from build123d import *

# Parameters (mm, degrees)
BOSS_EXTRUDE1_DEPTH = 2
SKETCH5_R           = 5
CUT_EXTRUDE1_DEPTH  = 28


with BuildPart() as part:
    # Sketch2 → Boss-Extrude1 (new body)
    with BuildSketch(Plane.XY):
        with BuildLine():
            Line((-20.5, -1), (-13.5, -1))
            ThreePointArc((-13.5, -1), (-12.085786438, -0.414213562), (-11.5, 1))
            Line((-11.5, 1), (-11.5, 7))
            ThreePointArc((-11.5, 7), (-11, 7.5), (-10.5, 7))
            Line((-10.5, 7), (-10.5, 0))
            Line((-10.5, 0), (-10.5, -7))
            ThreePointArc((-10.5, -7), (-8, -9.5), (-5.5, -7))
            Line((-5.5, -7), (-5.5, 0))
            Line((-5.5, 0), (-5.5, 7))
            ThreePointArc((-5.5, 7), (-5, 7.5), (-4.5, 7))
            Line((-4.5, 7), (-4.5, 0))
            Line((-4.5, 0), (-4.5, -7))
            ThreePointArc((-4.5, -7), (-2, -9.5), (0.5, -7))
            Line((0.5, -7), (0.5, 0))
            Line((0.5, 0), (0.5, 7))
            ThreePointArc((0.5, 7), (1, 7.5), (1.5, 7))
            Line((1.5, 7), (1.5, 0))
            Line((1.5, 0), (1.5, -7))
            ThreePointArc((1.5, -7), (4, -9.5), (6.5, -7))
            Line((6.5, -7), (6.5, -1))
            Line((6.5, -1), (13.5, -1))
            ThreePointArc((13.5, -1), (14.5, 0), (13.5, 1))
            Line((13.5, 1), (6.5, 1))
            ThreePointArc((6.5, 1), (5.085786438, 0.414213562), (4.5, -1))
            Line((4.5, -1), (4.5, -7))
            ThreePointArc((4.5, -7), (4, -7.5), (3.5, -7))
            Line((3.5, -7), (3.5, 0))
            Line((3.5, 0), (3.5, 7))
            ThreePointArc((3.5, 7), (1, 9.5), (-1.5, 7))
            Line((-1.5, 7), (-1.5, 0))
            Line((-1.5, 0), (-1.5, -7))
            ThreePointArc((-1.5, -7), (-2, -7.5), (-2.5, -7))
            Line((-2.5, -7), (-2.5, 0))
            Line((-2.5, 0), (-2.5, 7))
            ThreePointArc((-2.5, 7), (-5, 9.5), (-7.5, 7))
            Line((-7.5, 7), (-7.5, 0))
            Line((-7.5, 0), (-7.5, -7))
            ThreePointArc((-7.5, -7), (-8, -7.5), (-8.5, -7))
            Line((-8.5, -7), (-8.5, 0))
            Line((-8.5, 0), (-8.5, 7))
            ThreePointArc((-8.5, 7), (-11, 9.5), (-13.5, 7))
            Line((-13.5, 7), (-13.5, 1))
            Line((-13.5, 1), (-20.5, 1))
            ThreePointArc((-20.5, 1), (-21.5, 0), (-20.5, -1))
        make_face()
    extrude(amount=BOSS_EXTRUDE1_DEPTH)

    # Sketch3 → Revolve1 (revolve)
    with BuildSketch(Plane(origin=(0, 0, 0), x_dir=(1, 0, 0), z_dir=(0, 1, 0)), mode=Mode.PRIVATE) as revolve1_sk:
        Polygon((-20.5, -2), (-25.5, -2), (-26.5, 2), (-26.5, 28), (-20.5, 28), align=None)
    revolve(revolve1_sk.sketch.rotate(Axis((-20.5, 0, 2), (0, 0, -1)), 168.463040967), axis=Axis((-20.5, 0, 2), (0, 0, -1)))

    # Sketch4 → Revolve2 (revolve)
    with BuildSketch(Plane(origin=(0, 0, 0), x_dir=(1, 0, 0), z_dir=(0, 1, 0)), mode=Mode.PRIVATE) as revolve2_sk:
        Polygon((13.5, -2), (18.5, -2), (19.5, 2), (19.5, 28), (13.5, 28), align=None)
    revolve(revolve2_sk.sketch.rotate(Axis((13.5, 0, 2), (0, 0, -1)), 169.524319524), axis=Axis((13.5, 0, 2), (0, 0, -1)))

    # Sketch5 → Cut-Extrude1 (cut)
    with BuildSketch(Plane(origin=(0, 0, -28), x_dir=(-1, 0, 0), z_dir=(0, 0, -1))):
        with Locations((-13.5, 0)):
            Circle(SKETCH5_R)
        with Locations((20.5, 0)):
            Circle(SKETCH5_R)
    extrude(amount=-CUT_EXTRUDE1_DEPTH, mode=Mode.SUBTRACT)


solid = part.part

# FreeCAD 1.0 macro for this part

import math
import FreeCAD as App
import Part
import Sketcher

V = App.Vector

doc = App.newDocument("Part")
body = doc.addObject("PartDesign::Body", "Body")

# Sketch on XY plane
sketch1 = body.newObject("Sketcher::SketchObject", "Sketch")
sketch1.AttachmentSupport = (doc.getObject("XY_Plane"), [""])
sketch1.MapMode = "FlatFace"
sketch1.addGeometry(Part.LineSegment(V(-20.5, -1, 0), V(-13.5, -1, 0)), False)
sketch1.addGeometry(Part.ArcOfCircle(Part.Circle(V(-13.5, 1, 0), V(0, 0, 1), 2), math.radians(-90), math.radians(0)), False)
sketch1.addGeometry(Part.LineSegment(V(-11.5, 1, 0), V(-11.5, 7, 0)), False)
sketch1.addGeometry(Part.ArcOfCircle(Part.Circle(V(-11, 7, 0), V(0, 0, 1), 0.5), math.radians(0), math.radians(180)), False)
sketch1.addGeometry(Part.LineSegment(V(-10.5, 7, 0), V(-10.5, -7, 0)), False)
sketch1.addGeometry(Part.ArcOfCircle(Part.Circle(V(-8, -7, 0), V(0, 0, 1), 2.5), math.radians(180), math.radians(360)), False)
sketch1.addGeometry(Part.LineSegment(V(-5.5, -7, 0), V(-5.5, 7, 0)), False)
sketch1.addGeometry(Part.ArcOfCircle(Part.Circle(V(-5, 7, 0), V(0, 0, 1), 0.5), math.radians(0), math.radians(180)), False)
sketch1.addGeometry(Part.LineSegment(V(-4.5, 7, 0), V(-4.5, -7, 0)), False)
sketch1.addGeometry(Part.ArcOfCircle(Part.Circle(V(-2, -7, 0), V(0, 0, 1), 2.5), math.radians(180), math.radians(360)), False)
sketch1.addGeometry(Part.LineSegment(V(0.5, -7, 0), V(0.5, 7, 0)), False)
sketch1.addGeometry(Part.ArcOfCircle(Part.Circle(V(1, 7, 0), V(0, 0, 1), 0.5), math.radians(0), math.radians(180)), False)
sketch1.addGeometry(Part.LineSegment(V(1.5, 7, 0), V(1.5, -7, 0)), False)
sketch1.addGeometry(Part.ArcOfCircle(Part.Circle(V(4, -7, 0), V(0, 0, 1), 2.5), math.radians(180), math.radians(360)), False)
sketch1.addGeometry(Part.LineSegment(V(6.5, -7, 0), V(6.5, -1, 0)), False)
sketch1.addGeometry(Part.LineSegment(V(6.5, -1, 0), V(13.5, -1, 0)), False)
sketch1.addGeometry(Part.ArcOfCircle(Part.Circle(V(13.5, 0, 0), V(0, 0, 1), 1), math.radians(-90), math.radians(90)), False)
sketch1.addGeometry(Part.LineSegment(V(13.5, 1, 0), V(6.5, 1, 0)), False)
sketch1.addGeometry(Part.ArcOfCircle(Part.Circle(V(6.5, -1, 0), V(0, 0, 1), 2), math.radians(90), math.radians(180)), False)
sketch1.addGeometry(Part.LineSegment(V(4.5, -1, 0), V(4.5, -7, 0)), False)
sketch1.addGeometry(Part.ArcOfCircle(Part.Circle(V(4, -7, 0), V(0, 0, 1), 0.5), math.radians(180), math.radians(360)), False)
sketch1.addGeometry(Part.LineSegment(V(3.5, -7, 0), V(3.5, 7, 0)), False)
sketch1.addGeometry(Part.ArcOfCircle(Part.Circle(V(1, 7, 0), V(0, 0, 1), 2.5), math.radians(0), math.radians(180)), False)
sketch1.addGeometry(Part.LineSegment(V(-1.5, 7, 0), V(-1.5, -7, 0)), False)
sketch1.addGeometry(Part.ArcOfCircle(Part.Circle(V(-2, -7, 0), V(0, 0, 1), 0.5), math.radians(180), math.radians(360)), False)
sketch1.addGeometry(Part.LineSegment(V(-2.5, -7, 0), V(-2.5, 7, 0)), False)
sketch1.addGeometry(Part.ArcOfCircle(Part.Circle(V(-5, 7, 0), V(0, 0, 1), 2.5), math.radians(0), math.radians(180)), False)
sketch1.addGeometry(Part.LineSegment(V(-7.5, 7, 0), V(-7.5, -7, 0)), False)
sketch1.addGeometry(Part.ArcOfCircle(Part.Circle(V(-8, -7, 0), V(0, 0, 1), 0.5), math.radians(180), math.radians(360)), False)
sketch1.addGeometry(Part.LineSegment(V(-8.5, -7, 0), V(-8.5, 7, 0)), False)
sketch1.addGeometry(Part.ArcOfCircle(Part.Circle(V(-11, 7, 0), V(0, 0, 1), 2.5), math.radians(0), math.radians(180)), False)
sketch1.addGeometry(Part.LineSegment(V(-13.5, 7, 0), V(-13.5, 1, 0)), False)
sketch1.addGeometry(Part.LineSegment(V(-13.5, 1, 0), V(-20.5, 1, 0)), False)
sketch1.addGeometry(Part.ArcOfCircle(Part.Circle(V(-20.5, 0, 0), V(0, 0, 1), 1), math.radians(90), math.radians(270)), False)
sketch1.addConstraint(Sketcher.Constraint("Tangent", 0, 2, 1, 1))
sketch1.addConstraint(Sketcher.Constraint("Tangent", 1, 2, 2, 1))
sketch1.addConstraint(Sketcher.Constraint("Tangent", 2, 2, 3, 2))
sketch1.addConstraint(Sketcher.Constraint("Tangent", 3, 1, 4, 1))
sketch1.addConstraint(Sketcher.Constraint("Tangent", 4, 2, 5, 1))
sketch1.addConstraint(Sketcher.Constraint("Tangent", 5, 2, 6, 1))
sketch1.addConstraint(Sketcher.Constraint("Tangent", 6, 2, 7, 2))
sketch1.addConstraint(Sketcher.Constraint("Tangent", 7, 1, 8, 1))
sketch1.addConstraint(Sketcher.Constraint("Tangent", 8, 2, 9, 1))
sketch1.addConstraint(Sketcher.Constraint("Tangent", 9, 2, 10, 1))
sketch1.addConstraint(Sketcher.Constraint("Tangent", 10, 2, 11, 2))
sketch1.addConstraint(Sketcher.Constraint("Tangent", 11, 1, 12, 1))
sketch1.addConstraint(Sketcher.Constraint("Tangent", 12, 2, 13, 1))
sketch1.addConstraint(Sketcher.Constraint("Tangent", 13, 2, 14, 1))
sketch1.addConstraint(Sketcher.Constraint("Coincident", 14, 2, 15, 1))
sketch1.addConstraint(Sketcher.Constraint("Tangent", 15, 2, 16, 1))
sketch1.addConstraint(Sketcher.Constraint("Tangent", 16, 2, 17, 1))
sketch1.addConstraint(Sketcher.Constraint("Tangent", 17, 2, 18, 1))
sketch1.addConstraint(Sketcher.Constraint("Tangent", 18, 2, 19, 1))
sketch1.addConstraint(Sketcher.Constraint("Tangent", 19, 2, 20, 2))
sketch1.addConstraint(Sketcher.Constraint("Tangent", 20, 1, 21, 1))
sketch1.addConstraint(Sketcher.Constraint("Tangent", 21, 2, 22, 1))
sketch1.addConstraint(Sketcher.Constraint("Tangent", 22, 2, 23, 1))
sketch1.addConstraint(Sketcher.Constraint("Tangent", 23, 2, 24, 2))
sketch1.addConstraint(Sketcher.Constraint("Tangent", 24, 1, 25, 1))
sketch1.addConstraint(Sketcher.Constraint("Tangent", 25, 2, 26, 1))
sketch1.addConstraint(Sketcher.Constraint("Tangent", 26, 2, 27, 1))
sketch1.addConstraint(Sketcher.Constraint("Tangent", 27, 2, 28, 2))
sketch1.addConstraint(Sketcher.Constraint("Tangent", 28, 1, 29, 1))
sketch1.addConstraint(Sketcher.Constraint("Tangent", 29, 2, 30, 1))
sketch1.addConstraint(Sketcher.Constraint("Tangent", 30, 2, 31, 1))
sketch1.addConstraint(Sketcher.Constraint("Coincident", 31, 2, 32, 1))
sketch1.addConstraint(Sketcher.Constraint("Tangent", 32, 2, 33, 1))
sketch1.addConstraint(Sketcher.Constraint("Tangent", 33, 2, 0, 1))
sketch1.addConstraint(Sketcher.Constraint("Horizontal", 0))
sketch1.addConstraint(Sketcher.Constraint("Vertical", 2))
sketch1.addConstraint(Sketcher.Constraint("Vertical", 4))
sketch1.addConstraint(Sketcher.Constraint("Vertical", 6))
sketch1.addConstraint(Sketcher.Constraint("Vertical", 8))
sketch1.addConstraint(Sketcher.Constraint("Vertical", 10))
sketch1.addConstraint(Sketcher.Constraint("Vertical", 12))
sketch1.addConstraint(Sketcher.Constraint("Vertical", 14))
sketch1.addConstraint(Sketcher.Constraint("Horizontal", 15))
sketch1.addConstraint(Sketcher.Constraint("Horizontal", 17))
sketch1.addConstraint(Sketcher.Constraint("Vertical", 19))
sketch1.addConstraint(Sketcher.Constraint("Vertical", 21))
sketch1.addConstraint(Sketcher.Constraint("Vertical", 23))
sketch1.addConstraint(Sketcher.Constraint("Vertical", 25))
sketch1.addConstraint(Sketcher.Constraint("Vertical", 27))
sketch1.addConstraint(Sketcher.Constraint("Vertical", 29))
sketch1.addConstraint(Sketcher.Constraint("Vertical", 31))
sketch1.addConstraint(Sketcher.Constraint("Horizontal", 32))
sketch1.addConstraint(Sketcher.Constraint("Coincident", 20, 3, 13, 3))
sketch1.addConstraint(Sketcher.Constraint("Coincident", 22, 3, 11, 3))
sketch1.addConstraint(Sketcher.Constraint("Coincident", 24, 3, 9, 3))
sketch1.addConstraint(Sketcher.Constraint("Coincident", 26, 3, 7, 3))
sketch1.addConstraint(Sketcher.Constraint("Coincident", 28, 3, 5, 3))
sketch1.addConstraint(Sketcher.Constraint("Coincident", 30, 3, 3, 3))
sketch1.addConstraint(Sketcher.Constraint("Coincident", 14, 2, 18, 3))
sketch1.addConstraint(Sketcher.Constraint("Coincident", 31, 2, 1, 3))
sketch1.addConstraint(Sketcher.Constraint("Equal", 3, 7))
sketch1.addConstraint(Sketcher.Constraint("Equal", 5, 9))
sketch1.addConstraint(Sketcher.Constraint("Equal", 7, 11))
sketch1.addConstraint(Sketcher.Constraint("Equal", 9, 13))
sketch1.addConstraint(Sketcher.Constraint("Equal", 11, 20))
sketch1.addConstraint(Sketcher.Constraint("Symmetric", 0, 2, 16, 2, -1, 1))
sketch1.addConstraint(Sketcher.Constraint("Symmetric", 7, 1, 19, 2, -1, 1))
sketch1.addConstraint(Sketcher.Constraint("PointOnObject", 16, 3, -1))
sketch1.addConstraint(Sketcher.Constraint("Horizontal", 3, 3, 7, 3))
sketch1.addConstraint(Sketcher.Constraint("Horizontal", 5, 3, 9, 3))
sketch1.addConstraint(Sketcher.Constraint("Horizontal", 7, 3, 11, 3))
sketch1.addConstraint(Sketcher.Constraint("Horizontal", 9, 3, 13, 3))
sketch1.addConstraint(Sketcher.Constraint("Equal", 0, 15))
sketch1.addConstraint(Sketcher.Constraint("Radius", 1, 2.0))
sketch1.addConstraint(Sketcher.Constraint("Radius", 3, 0.5))
sketch1.addConstraint(Sketcher.Constraint("DistanceY", 2, 1, 2, 2, 6.0))
pad1 = body.newObject("PartDesign::Pad", "Pad")
pad1.Profile = sketch1
pad1.Length = 2

# Sketch on XZ plane
sketch2 = body.newObject("Sketcher::SketchObject", "Sketch001")
sketch2.AttachmentSupport = (doc.getObject("XZ_Plane"), [""])
sketch2.MapMode = "FlatFace"
sketch2.addGeometry(Part.LineSegment(V(-25.5, 2, 0), V(-20.5, 2, 0)), False)
sketch2.addGeometry(Part.LineSegment(V(-20.5, 2, 0), V(-20.5, -28, 0)), False)
sketch2.addGeometry(Part.LineSegment(V(-20.5, -28, 0), V(-26.5, -28, 0)), False)
sketch2.addGeometry(Part.LineSegment(V(-26.5, -28, 0), V(-26.5, -2, 0)), False)
sketch2.addGeometry(Part.LineSegment(V(-26.5, -2, 0), V(-25.5, 2, 0)), False)
sketch2.addGeometry(Part.LineSegment(V(-20.5, 2, 0), V(-20.5, -28, 0)), True)  # axis
sketch2.addConstraint(Sketcher.Constraint("Coincident", 0, 2, 1, 1))
sketch2.addConstraint(Sketcher.Constraint("Coincident", 1, 2, 2, 1))
sketch2.addConstraint(Sketcher.Constraint("Coincident", 2, 2, 3, 1))
sketch2.addConstraint(Sketcher.Constraint("Coincident", 3, 2, 4, 1))
sketch2.addConstraint(Sketcher.Constraint("Coincident", 4, 2, 0, 1))
sketch2.addConstraint(Sketcher.Constraint("Horizontal", 0))
sketch2.addConstraint(Sketcher.Constraint("Vertical", 1))
sketch2.addConstraint(Sketcher.Constraint("Horizontal", 2))
sketch2.addConstraint(Sketcher.Constraint("Vertical", 3))
sketch2.addConstraint(Sketcher.Constraint("Vertical", 5))
sketch2.addConstraint(Sketcher.Constraint("Coincident", 5, 1, 0, 2))
sketch2.addConstraint(Sketcher.Constraint("Horizontal", 2, 2, 5, 2))
sketch2.addConstraint(Sketcher.Constraint("DistanceX", 0, 1, 0, 2, 5.0))
sketch2.addConstraint(Sketcher.Constraint("DistanceX", 2, 2, 2, 1, 6.0))
sketch2.addConstraint(Sketcher.Constraint("DistanceY", 1, 2, 1, 1, 30.0))
sketch2.addConstraint(Sketcher.Constraint("DistanceY", 3, 1, 3, 2, 26.0))
sketch2.addConstraint(Sketcher.Constraint("DistanceY", -1, 1, 0, 2, 2.0))
sketch2.addConstraint(Sketcher.Constraint("DistanceX", 0, 2, -1, 1, 20.5))
revolution = body.newObject("PartDesign::Revolution", "Revolution")
revolution.Profile = sketch2
revolution.ReferenceAxis = (sketch2, ["Axis0"])
revolution.Angle = 360

# Sketch on XZ plane
sketch3 = body.newObject("Sketcher::SketchObject", "Sketch002")
sketch3.AttachmentSupport = (doc.getObject("XZ_Plane"), [""])
sketch3.MapMode = "FlatFace"
sketch3.addGeometry(Part.LineSegment(V(13.5, 2, 0), V(18.5, 2, 0)), False)
sketch3.addGeometry(Part.LineSegment(V(18.5, 2, 0), V(19.5, -2, 0)), False)
sketch3.addGeometry(Part.LineSegment(V(19.5, -2, 0), V(19.5, -28, 0)), False)
sketch3.addGeometry(Part.LineSegment(V(19.5, -28, 0), V(13.5, -28, 0)), False)
sketch3.addGeometry(Part.LineSegment(V(13.5, -28, 0), V(13.5, 2, 0)), False)
sketch3.addGeometry(Part.LineSegment(V(13.5, 2, 0), V(13.5, -28, 0)), True)  # axis
sketch3.addConstraint(Sketcher.Constraint("Coincident", 0, 2, 1, 1))
sketch3.addConstraint(Sketcher.Constraint("Coincident", 1, 2, 2, 1))
sketch3.addConstraint(Sketcher.Constraint("Coincident", 2, 2, 3, 1))
sketch3.addConstraint(Sketcher.Constraint("Coincident", 3, 2, 4, 1))
sketch3.addConstraint(Sketcher.Constraint("Coincident", 4, 2, 0, 1))
sketch3.addConstraint(Sketcher.Constraint("Horizontal", 0))
sketch3.addConstraint(Sketcher.Constraint("Vertical", 2))
sketch3.addConstraint(Sketcher.Constraint("Horizontal", 3))
sketch3.addConstraint(Sketcher.Constraint("Vertical", 4))
sketch3.addConstraint(Sketcher.Constraint("Vertical", 5))
sketch3.addConstraint(Sketcher.Constraint("Coincident", 5, 1, 4, 2))
sketch3.addConstraint(Sketcher.Constraint("Horizontal", 2, 2, 5, 2))
sketch3.addConstraint(Sketcher.Constraint("DistanceX", 0, 1, 0, 2, 5.0))
sketch3.addConstraint(Sketcher.Constraint("DistanceX", 3, 2, 3, 1, 6.0))
sketch3.addConstraint(Sketcher.Constraint("DistanceY", 2, 2, 2, 1, 26.0))
sketch3.addConstraint(Sketcher.Constraint("DistanceY", 4, 1, 4, 2, 30.0))
sketch3.addConstraint(Sketcher.Constraint("DistanceY", -1, 1, 0, 2, 2.0))
sketch3.addConstraint(Sketcher.Constraint("DistanceX", -1, 1, 0, 2, 18.5))
revolution2 = body.newObject("PartDesign::Revolution", "Revolution001")
revolution2.Profile = sketch3
revolution2.ReferenceAxis = (sketch3, ["Axis0"])
revolution2.Angle = 360

# Sketch on XY plane
sketch4 = body.newObject("Sketcher::SketchObject", "Sketch003")
sketch4.AttachmentSupport = (doc.getObject("XY_Plane"), [""])
sketch4.MapMode = "FlatFace"
sketch4.AttachmentOffset = App.Placement(V(0, 0, -28), App.Rotation())
sketch4.addGeometry(Part.Circle(V(14, 0, 0), V(0, 0, 1), 5), False)
sketch4.addGeometry(Part.Circle(V(-20, 0, 0), V(0, 0, 1), 5), False)
sketch4.addConstraint(Sketcher.Constraint("Equal", 0, 1))
sketch4.addConstraint(Sketcher.Constraint("PointOnObject", 0, 3, -1))
sketch4.addConstraint(Sketcher.Constraint("PointOnObject", 1, 3, -1))
sketch4.addConstraint(Sketcher.Constraint("Diameter", 0, 10.0))
sketch4.addConstraint(Sketcher.Constraint("DistanceX", 1, 3, 0, 3, 34.0))
sketch4.addConstraint(Sketcher.Constraint("DistanceX", -1, 1, 0, 3, 13.5))
pocket1 = body.newObject("PartDesign::Pocket", "Pocket")
pocket1.Profile = sketch4
pocket1.Length = 28
pocket1.Reversed = True

doc.recompute()
